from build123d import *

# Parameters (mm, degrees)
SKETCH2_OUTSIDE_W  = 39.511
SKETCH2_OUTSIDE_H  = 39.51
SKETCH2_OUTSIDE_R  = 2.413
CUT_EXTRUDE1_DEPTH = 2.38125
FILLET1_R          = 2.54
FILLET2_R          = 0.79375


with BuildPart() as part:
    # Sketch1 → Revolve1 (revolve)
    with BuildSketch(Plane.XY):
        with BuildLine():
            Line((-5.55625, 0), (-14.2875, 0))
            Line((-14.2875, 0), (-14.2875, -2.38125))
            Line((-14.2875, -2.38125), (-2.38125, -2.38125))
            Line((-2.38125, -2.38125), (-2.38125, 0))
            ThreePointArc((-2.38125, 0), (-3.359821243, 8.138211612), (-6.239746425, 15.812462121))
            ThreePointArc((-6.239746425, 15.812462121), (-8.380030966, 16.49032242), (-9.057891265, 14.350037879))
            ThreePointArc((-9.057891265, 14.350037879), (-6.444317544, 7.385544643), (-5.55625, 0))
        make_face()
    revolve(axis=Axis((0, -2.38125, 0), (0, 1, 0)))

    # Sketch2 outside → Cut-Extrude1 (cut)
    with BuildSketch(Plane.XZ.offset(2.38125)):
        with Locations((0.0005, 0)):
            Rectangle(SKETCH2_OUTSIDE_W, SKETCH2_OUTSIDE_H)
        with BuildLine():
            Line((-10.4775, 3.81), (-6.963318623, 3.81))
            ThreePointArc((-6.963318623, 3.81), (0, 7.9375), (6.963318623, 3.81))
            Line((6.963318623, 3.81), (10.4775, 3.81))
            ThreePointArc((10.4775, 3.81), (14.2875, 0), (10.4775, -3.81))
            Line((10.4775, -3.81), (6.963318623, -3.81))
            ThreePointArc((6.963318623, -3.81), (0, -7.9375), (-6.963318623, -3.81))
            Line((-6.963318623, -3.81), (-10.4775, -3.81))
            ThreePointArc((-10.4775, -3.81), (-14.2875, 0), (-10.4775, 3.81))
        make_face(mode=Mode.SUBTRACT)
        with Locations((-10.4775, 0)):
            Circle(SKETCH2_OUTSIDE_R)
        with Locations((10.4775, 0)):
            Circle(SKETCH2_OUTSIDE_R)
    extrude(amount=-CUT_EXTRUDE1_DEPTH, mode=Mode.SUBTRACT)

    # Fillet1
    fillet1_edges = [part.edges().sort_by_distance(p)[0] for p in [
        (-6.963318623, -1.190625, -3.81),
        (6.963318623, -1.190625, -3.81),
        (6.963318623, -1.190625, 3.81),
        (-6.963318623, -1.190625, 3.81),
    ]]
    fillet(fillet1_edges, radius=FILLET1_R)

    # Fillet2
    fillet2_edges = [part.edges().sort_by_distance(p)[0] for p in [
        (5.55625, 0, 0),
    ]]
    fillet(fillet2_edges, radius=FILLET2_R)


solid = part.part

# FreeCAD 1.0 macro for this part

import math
import FreeCAD as App
import Part
import Sketcher

V = App.Vector
Q = App.Units.Quantity


def edges_at(feature, points):
    """Names of the edges that pass closest to the given points."""
    edges = feature.Shape.Edges
    near = lambda p: min(range(len(edges)), key=lambda i: edges[i].distToShape(Part.Vertex(*p))[0])
    return sorted({f"Edge{near(p) + 1}" for p in points})

doc = App.newDocument("Part")
body = doc.addObject("PartDesign::Body", "Body")

sketch1 = body.newObject("Sketcher::SketchObject", "Sketch")
sketch1.AttachmentSupport = (doc.getObject("XY_Plane"), [""])
sketch1.MapMode = "FlatFace"
sketch1.addGeometry([
    Part.LineSegment(V(-5.6, 0, 0), V(-14.3, 0, 0)),
    Part.LineSegment(V(-14.3, 0, 0), V(-14.3, -2.4, 0)),
    Part.LineSegment(V(-14.3, -2.4, 0), V(-2.4, -2.4, 0)),
    Part.LineSegment(V(-2.4, -2.4, 0), V(-2.4, 0, 0)),
    Part.ArcOfCircle(Part.Circle(V(-36.7, 0, 0), V(0, 0, 1), 34.3), math.radians(0), math.radians(27)),
    Part.ArcOfCircle(Part.Circle(V(-7.6, 15.1, 0), V(0, 0, 1), 1.6), math.radians(27), math.radians(207)),
    Part.ArcOfCircle(Part.Circle(V(-36.7, 0, 0), V(0, 0, 1), 31.2), math.radians(0), math.radians(27)),
], False)
sketch1.addConstraint([
    Sketcher.Constraint("Coincident", 0, 2, 1, 1),
    Sketcher.Constraint("Coincident", 1, 2, 2, 1),
    Sketcher.Constraint("Coincident", 2, 2, 3, 1),
    Sketcher.Constraint("Tangent", 3, 2, 4, 1),
    Sketcher.Constraint("Tangent", 4, 2, 5, 1),
    Sketcher.Constraint("Tangent", 5, 2, 6, 2),
    Sketcher.Constraint("Coincident", 6, 1, 0, 1),
    Sketcher.Constraint("Horizontal", 0),
    Sketcher.Constraint("Vertical", 1),
    Sketcher.Constraint("Horizontal", 2),
    Sketcher.Constraint("Vertical", 3),
    Sketcher.Constraint("Coincident", 6, 3, 4, 3),
    Sketcher.Constraint("PointOnObject", 4, 3, -1),
    Sketcher.Constraint("PointOnObject", 0, 2, -1),
    Sketcher.Constraint("Radius", 5, Q("0.0625 in")),
    Sketcher.Constraint("DistanceX", 0, 2, 0, 1, Q("0.34375 in")),
    Sketcher.Constraint("DistanceY", 1, 2, 1, 1, Q("0.09375 in")),
    Sketcher.Constraint("DistanceY", -1, 1, 5, 3, Q("0.59375 in")),
    Sketcher.Constraint("DistanceX", 0, 2, -1, 1, Q("0.5625 in")),
    Sketcher.Constraint("Radius", 4, Q("34.329688 mm")),
])
revolution = body.newObject("PartDesign::Revolution", "Revolution")
revolution.Profile = sketch1
revolution.ReferenceAxis = (sketch1, ["V_Axis"])
revolution.Angle = 360

sketch2 = body.newObject("Sketcher::SketchObject", "Sketch001")
sketch2.AttachmentSupport = (doc.getObject("XZ_Plane"), [""])
sketch2.MapMode = "FlatFace"
sketch2.AttachmentOffset = App.Placement(V(0, 0, 0.09375 * 25.4), App.Rotation())
sketch2.addGeometry([
    Part.LineSegment(V(-19.8, 19.8, 0), V(-19.8, -19.8, 0)),
    Part.LineSegment(V(-19.8, -19.8, 0), V(19.8, -19.8, 0)),
    Part.LineSegment(V(19.8, -19.8, 0), V(19.8, 19.8, 0)),
    Part.LineSegment(V(19.8, 19.8, 0), V(-19.8, 19.8, 0)),
    Part.ArcOfCircle(Part.Circle(V(-10.5, 0, 0), V(0, 0, 1), 3.8), math.radians(90), math.radians(270)),
    Part.LineSegment(V(-10.5, 3.8, 0), V(-7, 3.8, 0)),
    Part.ArcOfCircle(Part.Circle(V(0, 0, 0), V(0, 0, 1), 7.9), math.radians(29), math.radians(151)),
    Part.LineSegment(V(7, 3.8, 0), V(10.5, 3.8, 0)),
    Part.ArcOfCircle(Part.Circle(V(10.5, 0, 0), V(0, 0, 1), 3.8), math.radians(-90), math.radians(90)),
    Part.LineSegment(V(10.5, -3.8, 0), V(7, -3.8, 0)),
    Part.ArcOfCircle(Part.Circle(V(0, 0, 0), V(0, 0, 1), 7.9), math.radians(-151), math.radians(-29)),
    Part.LineSegment(V(-7, -3.8, 0), V(-10.5, -3.8, 0)),
    Part.Circle(V(-10.5, 0, 0), V(0, 0, 1), 2.4),
    Part.Circle(V(10.5, 0, 0), V(0, 0, 1), 2.4),
], False)
sketch2.addConstraint([
    Sketcher.Constraint("Coincident", 0, 2, 1, 1),
    Sketcher.Constraint("Coincident", 1, 2, 2, 1),
    Sketcher.Constraint("Coincident", 2, 2, 3, 1),
    Sketcher.Constraint("Coincident", 3, 2, 0, 1),
    Sketcher.Constraint("Tangent", 4, 1, 5, 1),
    Sketcher.Constraint("Coincident", 5, 2, 6, 2),
    Sketcher.Constraint("Coincident", 6, 1, 7, 1),
    Sketcher.Constraint("Tangent", 7, 2, 8, 2),
    Sketcher.Constraint("Tangent", 8, 1, 9, 1),
    Sketcher.Constraint("Coincident", 9, 2, 10, 2),
    Sketcher.Constraint("Coincident", 10, 1, 11, 1),
    Sketcher.Constraint("Tangent", 11, 2, 4, 2),
    Sketcher.Constraint("Vertical", 0),
    Sketcher.Constraint("Horizontal", 1),
    Sketcher.Constraint("Vertical", 2),
    Sketcher.Constraint("Horizontal", 3),
    Sketcher.Constraint("Horizontal", 5),
    Sketcher.Constraint("Horizontal", 7),
    Sketcher.Constraint("Horizontal", 9),
    Sketcher.Constraint("Horizontal", 11),
    Sketcher.Constraint("Coincident", 6, 3, -1, 1),
    Sketcher.Constraint("Coincident", 10, 3, -1, 1),
    Sketcher.Constraint("Coincident", 12, 3, 4, 3),
    Sketcher.Constraint("Coincident", 13, 3, 8, 3),
    Sketcher.Constraint("Equal", 4, 8),
    Sketcher.Constraint("Equal", 6, 10),
    Sketcher.Constraint("Equal", 12, 13),
    Sketcher.Constraint("Symmetric", 4, 3, 8, 3, -1, 1),
    Sketcher.Constraint("PointOnObject", 4, 3, -1),
    Sketcher.Constraint("Diameter", 12, Q("0.19 in")),
    Sketcher.Constraint("Radius", 4, Q("0.15 in")),
    Sketcher.Constraint("Radius", 6, Q("0.3125 in")),
    Sketcher.Constraint("DistanceX", 4, 3, 8, 3, Q("0.825 in")),
    Sketcher.Constraint("DistanceX", 1, 1, 1, 2, Q("39.511 mm")),
    Sketcher.Constraint("DistanceY", 0, 2, 0, 1, Q("39.51 mm")),
    Sketcher.Constraint("DistanceX", 0, 2, -1, 1, Q("19.755 mm")),
    Sketcher.Constraint("DistanceY", 0, 2, -1, 1, Q("19.755 mm")),
])
pocket1 = body.newObject("PartDesign::Pocket", "Pocket")
pocket1.Profile = sketch2
pocket1.Length = Q("0.09375 in")
doc.recompute()

fillet = body.newObject("PartDesign::Fillet", "Fillet")
fillet.Base = (pocket1, edges_at(pocket1, [
    (-6.963, -1.191, -3.81),
    (6.963, -1.191, -3.81),
    (6.963, -1.191, 3.81),
    (-6.963, -1.191, 3.81),
]))
fillet.Radius = Q("0.1 in")
doc.recompute()

fillet2 = body.newObject("PartDesign::Fillet", "Fillet001")
fillet2.Base = (fillet, edges_at(fillet, [(5.556, 0, 0)]))
fillet2.Radius = Q("0.03125 in")

doc.recompute()
